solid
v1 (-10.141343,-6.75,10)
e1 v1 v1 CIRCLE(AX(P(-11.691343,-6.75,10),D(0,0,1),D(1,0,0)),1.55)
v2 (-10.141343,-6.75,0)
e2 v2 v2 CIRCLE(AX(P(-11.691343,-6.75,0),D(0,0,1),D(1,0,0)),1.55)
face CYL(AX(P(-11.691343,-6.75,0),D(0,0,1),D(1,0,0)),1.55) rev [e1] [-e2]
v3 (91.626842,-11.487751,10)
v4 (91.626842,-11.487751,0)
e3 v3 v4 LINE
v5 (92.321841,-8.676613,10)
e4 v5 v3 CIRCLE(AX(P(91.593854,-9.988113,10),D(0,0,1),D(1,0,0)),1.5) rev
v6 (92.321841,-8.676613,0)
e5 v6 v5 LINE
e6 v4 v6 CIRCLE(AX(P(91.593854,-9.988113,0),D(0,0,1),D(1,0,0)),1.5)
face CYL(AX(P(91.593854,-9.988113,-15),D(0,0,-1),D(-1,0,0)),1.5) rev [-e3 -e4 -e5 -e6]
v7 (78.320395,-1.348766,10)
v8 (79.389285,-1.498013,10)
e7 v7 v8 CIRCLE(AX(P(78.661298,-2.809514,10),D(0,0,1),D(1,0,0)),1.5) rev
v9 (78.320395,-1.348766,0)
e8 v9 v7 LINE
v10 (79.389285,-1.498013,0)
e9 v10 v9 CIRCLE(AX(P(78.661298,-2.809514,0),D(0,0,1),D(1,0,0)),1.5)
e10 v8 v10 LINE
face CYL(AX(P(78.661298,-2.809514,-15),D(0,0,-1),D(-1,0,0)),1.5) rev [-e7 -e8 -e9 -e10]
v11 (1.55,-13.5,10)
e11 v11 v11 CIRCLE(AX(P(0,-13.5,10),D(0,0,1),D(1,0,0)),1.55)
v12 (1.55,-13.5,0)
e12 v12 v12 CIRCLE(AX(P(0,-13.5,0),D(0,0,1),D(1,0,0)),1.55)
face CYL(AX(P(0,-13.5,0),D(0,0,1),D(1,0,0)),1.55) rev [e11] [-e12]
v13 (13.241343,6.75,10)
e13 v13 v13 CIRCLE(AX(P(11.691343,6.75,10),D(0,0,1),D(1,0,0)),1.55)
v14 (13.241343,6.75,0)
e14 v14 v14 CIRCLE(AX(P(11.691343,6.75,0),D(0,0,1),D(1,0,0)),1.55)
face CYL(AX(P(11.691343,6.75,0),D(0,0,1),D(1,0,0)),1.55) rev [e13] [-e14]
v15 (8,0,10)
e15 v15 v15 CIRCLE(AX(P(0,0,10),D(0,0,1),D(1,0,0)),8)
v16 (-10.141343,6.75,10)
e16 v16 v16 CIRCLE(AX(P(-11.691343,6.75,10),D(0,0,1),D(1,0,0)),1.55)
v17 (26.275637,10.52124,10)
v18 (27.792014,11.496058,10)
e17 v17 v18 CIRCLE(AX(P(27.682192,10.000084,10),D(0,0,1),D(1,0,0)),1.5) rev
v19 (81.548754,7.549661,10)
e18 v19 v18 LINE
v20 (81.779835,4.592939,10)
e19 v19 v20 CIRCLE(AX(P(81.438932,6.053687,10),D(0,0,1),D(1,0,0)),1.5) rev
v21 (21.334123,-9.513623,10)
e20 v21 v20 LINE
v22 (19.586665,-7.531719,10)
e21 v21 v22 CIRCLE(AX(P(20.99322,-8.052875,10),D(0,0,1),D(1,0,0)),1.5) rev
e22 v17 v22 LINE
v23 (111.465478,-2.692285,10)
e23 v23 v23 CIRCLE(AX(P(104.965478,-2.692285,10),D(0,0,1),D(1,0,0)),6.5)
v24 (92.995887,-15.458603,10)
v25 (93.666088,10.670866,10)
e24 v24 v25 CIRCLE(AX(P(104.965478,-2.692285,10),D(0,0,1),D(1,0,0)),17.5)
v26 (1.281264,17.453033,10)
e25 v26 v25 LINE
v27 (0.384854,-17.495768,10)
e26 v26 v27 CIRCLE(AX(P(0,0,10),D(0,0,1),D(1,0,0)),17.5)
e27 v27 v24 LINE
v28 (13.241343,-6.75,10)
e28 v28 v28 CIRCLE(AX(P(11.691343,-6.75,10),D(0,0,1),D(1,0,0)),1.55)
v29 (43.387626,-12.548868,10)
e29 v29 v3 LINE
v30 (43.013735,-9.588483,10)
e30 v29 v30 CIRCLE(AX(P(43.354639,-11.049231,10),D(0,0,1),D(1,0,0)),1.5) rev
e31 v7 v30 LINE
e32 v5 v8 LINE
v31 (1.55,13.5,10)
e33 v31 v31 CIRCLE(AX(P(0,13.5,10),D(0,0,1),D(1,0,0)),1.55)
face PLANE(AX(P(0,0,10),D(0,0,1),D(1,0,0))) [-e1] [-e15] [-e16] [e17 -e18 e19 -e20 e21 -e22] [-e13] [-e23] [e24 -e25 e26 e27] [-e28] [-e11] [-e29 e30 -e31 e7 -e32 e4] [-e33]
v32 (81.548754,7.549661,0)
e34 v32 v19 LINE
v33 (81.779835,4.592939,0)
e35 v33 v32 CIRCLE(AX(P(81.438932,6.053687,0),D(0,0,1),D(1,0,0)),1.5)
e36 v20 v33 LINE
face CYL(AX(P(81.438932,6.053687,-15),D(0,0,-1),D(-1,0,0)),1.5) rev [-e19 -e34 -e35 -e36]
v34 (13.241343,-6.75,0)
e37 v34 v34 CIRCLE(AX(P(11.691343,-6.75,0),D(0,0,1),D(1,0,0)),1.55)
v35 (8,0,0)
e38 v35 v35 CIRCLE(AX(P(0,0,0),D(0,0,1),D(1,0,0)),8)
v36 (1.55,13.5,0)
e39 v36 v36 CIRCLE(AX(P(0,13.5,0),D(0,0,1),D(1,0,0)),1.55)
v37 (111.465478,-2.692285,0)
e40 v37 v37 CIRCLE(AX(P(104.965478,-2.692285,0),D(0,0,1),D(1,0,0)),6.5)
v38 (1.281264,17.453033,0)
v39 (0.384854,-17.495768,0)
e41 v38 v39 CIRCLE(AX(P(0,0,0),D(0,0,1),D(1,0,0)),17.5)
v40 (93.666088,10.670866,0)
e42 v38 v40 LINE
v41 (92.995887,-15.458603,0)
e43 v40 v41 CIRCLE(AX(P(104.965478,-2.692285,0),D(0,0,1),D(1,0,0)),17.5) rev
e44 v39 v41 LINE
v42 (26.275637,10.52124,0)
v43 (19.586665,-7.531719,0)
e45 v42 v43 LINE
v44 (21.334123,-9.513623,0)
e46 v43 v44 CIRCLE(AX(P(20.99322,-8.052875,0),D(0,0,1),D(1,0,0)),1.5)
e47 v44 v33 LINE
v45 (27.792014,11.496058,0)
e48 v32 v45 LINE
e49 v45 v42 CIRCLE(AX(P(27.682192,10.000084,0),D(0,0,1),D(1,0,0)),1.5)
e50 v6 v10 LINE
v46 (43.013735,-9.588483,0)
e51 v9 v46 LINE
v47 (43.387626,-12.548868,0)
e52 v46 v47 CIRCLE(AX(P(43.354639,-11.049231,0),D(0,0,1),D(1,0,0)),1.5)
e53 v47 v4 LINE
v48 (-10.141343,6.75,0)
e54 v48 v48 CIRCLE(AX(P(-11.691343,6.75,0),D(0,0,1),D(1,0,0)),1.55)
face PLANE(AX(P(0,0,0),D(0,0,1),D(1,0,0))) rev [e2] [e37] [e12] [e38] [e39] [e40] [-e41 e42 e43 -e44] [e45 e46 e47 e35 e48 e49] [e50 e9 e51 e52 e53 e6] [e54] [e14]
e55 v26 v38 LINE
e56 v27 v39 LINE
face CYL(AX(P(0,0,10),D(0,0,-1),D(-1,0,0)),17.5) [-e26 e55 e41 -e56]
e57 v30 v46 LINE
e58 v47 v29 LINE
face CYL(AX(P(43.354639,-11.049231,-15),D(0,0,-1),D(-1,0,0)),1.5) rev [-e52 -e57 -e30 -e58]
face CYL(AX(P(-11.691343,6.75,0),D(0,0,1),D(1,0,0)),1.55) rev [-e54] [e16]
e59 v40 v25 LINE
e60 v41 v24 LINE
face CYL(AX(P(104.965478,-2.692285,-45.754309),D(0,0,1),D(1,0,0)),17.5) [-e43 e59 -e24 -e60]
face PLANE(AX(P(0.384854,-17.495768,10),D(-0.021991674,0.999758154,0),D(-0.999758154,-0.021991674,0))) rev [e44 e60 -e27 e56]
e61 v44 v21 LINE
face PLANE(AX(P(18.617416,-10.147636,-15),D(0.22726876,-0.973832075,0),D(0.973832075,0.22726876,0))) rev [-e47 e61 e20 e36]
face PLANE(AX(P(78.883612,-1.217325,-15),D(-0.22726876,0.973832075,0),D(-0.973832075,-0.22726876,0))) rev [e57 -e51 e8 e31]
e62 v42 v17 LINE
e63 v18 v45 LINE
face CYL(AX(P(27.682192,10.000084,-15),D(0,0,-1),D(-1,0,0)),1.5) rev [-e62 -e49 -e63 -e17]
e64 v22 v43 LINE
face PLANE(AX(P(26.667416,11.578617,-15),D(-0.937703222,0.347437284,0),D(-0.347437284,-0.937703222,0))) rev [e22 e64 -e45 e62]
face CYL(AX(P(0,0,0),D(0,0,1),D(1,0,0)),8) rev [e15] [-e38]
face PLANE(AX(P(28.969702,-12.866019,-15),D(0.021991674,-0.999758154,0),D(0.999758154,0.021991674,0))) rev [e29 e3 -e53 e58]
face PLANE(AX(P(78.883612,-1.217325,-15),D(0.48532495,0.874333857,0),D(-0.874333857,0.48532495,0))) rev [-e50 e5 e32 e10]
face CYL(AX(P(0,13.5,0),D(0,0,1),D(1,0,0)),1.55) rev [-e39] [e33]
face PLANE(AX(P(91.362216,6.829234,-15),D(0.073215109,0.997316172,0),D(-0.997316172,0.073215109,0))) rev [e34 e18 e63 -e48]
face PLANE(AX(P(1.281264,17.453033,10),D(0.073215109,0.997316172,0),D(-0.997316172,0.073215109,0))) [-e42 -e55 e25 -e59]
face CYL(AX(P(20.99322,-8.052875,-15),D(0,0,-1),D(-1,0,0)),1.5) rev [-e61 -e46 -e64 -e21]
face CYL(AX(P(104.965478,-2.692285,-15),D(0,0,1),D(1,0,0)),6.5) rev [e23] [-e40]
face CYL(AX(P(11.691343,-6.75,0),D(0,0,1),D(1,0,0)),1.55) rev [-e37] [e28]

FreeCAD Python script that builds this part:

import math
import FreeCAD as App
import Part
import Sketcher

V = App.Vector
Q = App.Units.Quantity


def edges_at(feature, points):
    """Names of the edges that pass closest to the given points."""
    edges = feature.Shape.Edges
    near = lambda p: min(range(len(edges)), key=lambda i: edges[i].distToShape(Part.Vertex(*p))[0])
    return sorted({f"Edge{near(p) + 1}" for p in points})

doc = App.newDocument("Part")
body = doc.addObject("PartDesign::Body", "Body")

sketch1 = doc.addObject("Sketcher::SketchObject", "Sketch")
body.addObject(sketch1)
sketch1.AttachmentSupport = (doc.XY_Plane, [""])
sketch1.MapMode = "FlatFace"
sketch1.addGeometry([
    Part.LineSegment(V(105.880667, 9.774168, 0), V(1.281264, 17.453033, 0)),
    Part.ArcOfCircle(Part.Circle(V(0, 0, 0), V(0, 0, 1), 17.5), math.radians(85.801326), math.radians(271.260132)),
    Part.LineSegment(V(0.384854, -17.495768, 0), V(105.240374, -15.189261, 0)),
    Part.ArcOfCircle(Part.Circle(V(104.965478, -2.692285, 0), V(0, 0, 1), 12.5), math.radians(-88.739868), math.radians(85.801326)),
], False)
sketch1.addConstraint([
    Sketcher.Constraint("Coincident", 0, 2, 1, 1),
    Sketcher.Constraint("Coincident", 1, 2, 2, 1),
    Sketcher.Constraint("Coincident", 2, 2, 3, 1),
    Sketcher.Constraint("Coincident", 3, 2, 0, 1),
    Sketcher.Constraint("Coincident", 1, 3, -1, 1),
    Sketcher.Constraint("Radius", 1, Q("17.5 mm")),
    Sketcher.Constraint("Radius", 3, Q("12.5 mm")),
    Sketcher.Constraint("DistanceY", 1, 2, 0, 2, Q("34.948801 mm")),
    Sketcher.Constraint("DistanceX", -1, 1, 3, 3, Q("104.965478 mm")),
    Sketcher.Constraint("DistanceY", 2, 2, -1, 1, Q("15.189261 mm")),
    Sketcher.Constraint("DistanceX", 1, 2, 0, 2, Q("0.89641 mm")),
    Sketcher.Constraint("DistanceX", 1, 2, 2, 2, Q("104.85552 mm")),
    Sketcher.Constraint("DistanceX", 3, 3, 3, 2, Q("0.915189 mm")),
])
pad1 = doc.addObject("PartDesign::Pad", "Pad")
body.addObject(pad1)
pad1.Profile = sketch1
pad1.Length = 10

sketch2 = doc.addObject("Sketcher::SketchObject", "Sketch001")
body.addObject(sketch2)
sketch2.AttachmentSupport = (doc.XY_Plane, [""])
sketch2.MapMode = "FlatFace"
sketch2.AttachmentOffset = App.Placement(V(0, 0, 10), App.Rotation())
sketch2.addGeometry([
    Part.Circle(V(0, 13.5, 0), V(0, 0, 1), 1.6),
    Part.Circle(V(11.7, 6.8, 0), V(0, 0, 1), 1.6),
    Part.Circle(V(11.7, -6.8, 0), V(0, 0, 1), 1.6),
    Part.Circle(V(0, -13.5, 0), V(0, 0, 1), 1.6),
    Part.Circle(V(-11.7, -6.8, 0), V(0, 0, 1), 1.6),
    Part.Circle(V(-11.7, 6.8, 0), V(0, 0, 1), 1.6),
    Part.Circle(V(0, 0, 0), V(0, 0, 1), 8),
], False)
sketch2.addConstraint([
    Sketcher.Constraint("Coincident", 6, 3, -1, 1),
    Sketcher.Constraint("Equal", 0, 1),
    Sketcher.Constraint("Equal", 1, 2),
    Sketcher.Constraint("Equal", 2, 3),
    Sketcher.Constraint("Equal", 3, 4),
    Sketcher.Constraint("Equal", 4, 5),
    Sketcher.Constraint("Symmetric", 0, 3, 3, 3, -1, 1),
    Sketcher.Constraint("Symmetric", 1, 3, 4, 3, -1, 1),
    Sketcher.Constraint("Symmetric", 2, 3, 5, 3, -1, 1),
    Sketcher.Constraint("Symmetric", 2, 3, 4, 3, -2),
    Sketcher.Constraint("PointOnObject", 0, 3, -2),
    Sketcher.Constraint("Diameter", 6, Q("16 mm")),
    Sketcher.Constraint("Diameter", 0, Q("3.1 mm")),
    Sketcher.Constraint("DistanceY", 3, 3, 0, 3, Q("27 mm")),
    Sketcher.Constraint("DistanceY", 2, 3, 1, 3, Q("13.5 mm")),
    Sketcher.Constraint("DistanceX", -1, 1, 1, 3, Q("11.691343 mm")),
])
pocket1 = doc.addObject("PartDesign::Pocket", "Pocket")
body.addObject(pocket1)
pocket1.Profile = sketch2
pocket1.Length = 10

sketch3 = doc.addObject("Sketcher::SketchObject", "Sketch002")
body.addObject(sketch3)
sketch3.AttachmentSupport = (doc.XY_Plane, [""])
sketch3.MapMode = "FlatFace"
sketch3.AttachmentOffset = App.Placement(V(0, 0, 10), App.Rotation())
sketch3.addGeometry([
    Part.LineSegment(V(29, -13, 0), V(97, -11, 0)),
    Part.LineSegment(V(97, -11, 0), V(79, -1, 0)),
    Part.LineSegment(V(79, -1, 0), V(29, -13, 0)),
    Part.LineSegment(V(27, 12, 0), V(19, -10, 0)),
    Part.LineSegment(V(19, -10, 0), V(91, 7, 0)),
    Part.LineSegment(V(91, 7, 0), V(27, 12, 0)),
], False)
sketch3.addConstraint([
    Sketcher.Constraint("Coincident", 0, 2, 1, 1),
    Sketcher.Constraint("Coincident", 1, 2, 2, 1),
    Sketcher.Constraint("Coincident", 2, 2, 0, 1),
    Sketcher.Constraint("Coincident", 3, 2, 4, 1),
    Sketcher.Constraint("Coincident", 4, 2, 5, 1),
    Sketcher.Constraint("Coincident", 5, 2, 3, 1),
    Sketcher.Constraint("Parallel", 2, 4),
    Sketcher.Constraint("DistanceX", 3, 2, 5, 2, Q("8.049999 mm")),
    Sketcher.Constraint("DistanceX", 3, 2, 4, 2, Q("72.7448 mm")),
    Sketcher.Constraint("Distance", 2, Q("51.255151 mm")),
    Sketcher.Constraint("Distance", 4, Q("74.699532 mm")),
    Sketcher.Constraint("DistanceX", -1, 1, 0, 2, Q("97.166692 mm")),
    Sketcher.Constraint("DistanceY", 0, 2, -1, 1, Q("11.365891 mm")),
    Sketcher.Constraint("DistanceY", 2, 2, -1, 1, Q("12.866019 mm")),
    Sketcher.Constraint("DistanceX", 1, 2, 0, 2, Q("18.28308 mm")),
    Sketcher.Constraint("DistanceY", 3, 2, 1, 2, Q("8.930311 mm")),
    Sketcher.Constraint("DistanceY", 1, 2, 5, 2, Q("12.795942 mm")),
    Sketcher.Constraint("DistanceX", -1, 1, 3, 2, Q("18.617416 mm")),
])
pocket2 = doc.addObject("PartDesign::Pocket", "Pocket001")
body.addObject(pocket2)
pocket2.Profile = sketch3
pocket2.Length = 25
doc.recompute()

fillet = doc.addObject("PartDesign::Fillet", "Fillet")
body.addObject(fillet)
fillet.Base = (pocket2, edges_at(pocket2, [
    (26.667, 11.579, 5),
    (91.362, 6.829, 5),
    (18.617, -10.148, 5),
    (28.97, -12.866, 5),
    (78.884, -1.217, 5),
    (97.167, -11.366, 5),
]))
fillet.Radius = 1.5

sketch4 = doc.addObject("Sketcher::SketchObject", "Sketch003")
body.addObject(sketch4)
sketch4.AttachmentSupport = (doc.XY_Plane, [""])
sketch4.MapMode = "FlatFace"
sketch4.AttachmentOffset = App.Placement(V(0, 0, 10), App.Rotation())
sketch4.addGeometry(Part.Circle(V(105, -3, 0), V(0, 0, 1), 6), False)
sketch4.addConstraint([
    Sketcher.Constraint("Diameter", 0, Q("13 mm")),
    Sketcher.Constraint("DistanceX", -1, 1, 0, 3, Q("104.965478 mm")),
    Sketcher.Constraint("DistanceY", 0, 3, -1, 1, Q("2.692285 mm")),
])
pocket3 = doc.addObject("PartDesign::Pocket", "Pocket002")
body.addObject(pocket3)
pocket3.Profile = sketch4
pocket3.Length = 25

sketch5 = doc.addObject("Sketcher::SketchObject", "Sketch004")
body.addObject(sketch5)
sketch5.AttachmentSupport = (doc.XY_Plane, [""])
sketch5.MapMode = "FlatFace"
sketch5.addGeometry([
    Part.LineSegment(V(94, 11, 0), V(106, 10, 0)),
    Part.ArcOfCircle(Part.Circle(V(105, -3, 0), V(0, 0, 1), 12), math.radians(-89), math.radians(86)),
    Part.LineSegment(V(105, -15, 0), V(93, -15, 0)),
    Part.ArcOfCircle(Part.Circle(V(105, -3, 0), V(0, 0, 1), 18), math.radians(-133), math.radians(130)),
], False)
sketch5.addConstraint([
    Sketcher.Constraint("Tangent", 0, 2, 1, 2),
    Sketcher.Constraint("Tangent", 1, 1, 2, 1),
    Sketcher.Constraint("Coincident", 2, 2, 3, 1),
    Sketcher.Constraint("Coincident", 3, 2, 0, 1),
    Sketcher.Constraint("Coincident", 3, 3, 1, 3),
    Sketcher.Constraint("Radius", 1, Q("12.5 mm")),
    Sketcher.Constraint("Radius", 3, Q("17.5 mm")),
    Sketcher.Constraint("DistanceY", 0, 2, 3, 2, Q("0.896698 mm")),
    Sketcher.Constraint("DistanceX", 2, 2, 3, 2, Q("0.670201 mm")),
    Sketcher.Constraint("DistanceX", -1, 1, 1, 3, Q("104.965478 mm")),
    Sketcher.Constraint("DistanceY", 1, 1, -1, 1, Q("15.189261 mm")),
])
pad2 = doc.addObject("PartDesign::Pad", "Pad001")
body.addObject(pad2)
pad2.Profile = sketch5
pad2.Length = 10

doc.recompute()
